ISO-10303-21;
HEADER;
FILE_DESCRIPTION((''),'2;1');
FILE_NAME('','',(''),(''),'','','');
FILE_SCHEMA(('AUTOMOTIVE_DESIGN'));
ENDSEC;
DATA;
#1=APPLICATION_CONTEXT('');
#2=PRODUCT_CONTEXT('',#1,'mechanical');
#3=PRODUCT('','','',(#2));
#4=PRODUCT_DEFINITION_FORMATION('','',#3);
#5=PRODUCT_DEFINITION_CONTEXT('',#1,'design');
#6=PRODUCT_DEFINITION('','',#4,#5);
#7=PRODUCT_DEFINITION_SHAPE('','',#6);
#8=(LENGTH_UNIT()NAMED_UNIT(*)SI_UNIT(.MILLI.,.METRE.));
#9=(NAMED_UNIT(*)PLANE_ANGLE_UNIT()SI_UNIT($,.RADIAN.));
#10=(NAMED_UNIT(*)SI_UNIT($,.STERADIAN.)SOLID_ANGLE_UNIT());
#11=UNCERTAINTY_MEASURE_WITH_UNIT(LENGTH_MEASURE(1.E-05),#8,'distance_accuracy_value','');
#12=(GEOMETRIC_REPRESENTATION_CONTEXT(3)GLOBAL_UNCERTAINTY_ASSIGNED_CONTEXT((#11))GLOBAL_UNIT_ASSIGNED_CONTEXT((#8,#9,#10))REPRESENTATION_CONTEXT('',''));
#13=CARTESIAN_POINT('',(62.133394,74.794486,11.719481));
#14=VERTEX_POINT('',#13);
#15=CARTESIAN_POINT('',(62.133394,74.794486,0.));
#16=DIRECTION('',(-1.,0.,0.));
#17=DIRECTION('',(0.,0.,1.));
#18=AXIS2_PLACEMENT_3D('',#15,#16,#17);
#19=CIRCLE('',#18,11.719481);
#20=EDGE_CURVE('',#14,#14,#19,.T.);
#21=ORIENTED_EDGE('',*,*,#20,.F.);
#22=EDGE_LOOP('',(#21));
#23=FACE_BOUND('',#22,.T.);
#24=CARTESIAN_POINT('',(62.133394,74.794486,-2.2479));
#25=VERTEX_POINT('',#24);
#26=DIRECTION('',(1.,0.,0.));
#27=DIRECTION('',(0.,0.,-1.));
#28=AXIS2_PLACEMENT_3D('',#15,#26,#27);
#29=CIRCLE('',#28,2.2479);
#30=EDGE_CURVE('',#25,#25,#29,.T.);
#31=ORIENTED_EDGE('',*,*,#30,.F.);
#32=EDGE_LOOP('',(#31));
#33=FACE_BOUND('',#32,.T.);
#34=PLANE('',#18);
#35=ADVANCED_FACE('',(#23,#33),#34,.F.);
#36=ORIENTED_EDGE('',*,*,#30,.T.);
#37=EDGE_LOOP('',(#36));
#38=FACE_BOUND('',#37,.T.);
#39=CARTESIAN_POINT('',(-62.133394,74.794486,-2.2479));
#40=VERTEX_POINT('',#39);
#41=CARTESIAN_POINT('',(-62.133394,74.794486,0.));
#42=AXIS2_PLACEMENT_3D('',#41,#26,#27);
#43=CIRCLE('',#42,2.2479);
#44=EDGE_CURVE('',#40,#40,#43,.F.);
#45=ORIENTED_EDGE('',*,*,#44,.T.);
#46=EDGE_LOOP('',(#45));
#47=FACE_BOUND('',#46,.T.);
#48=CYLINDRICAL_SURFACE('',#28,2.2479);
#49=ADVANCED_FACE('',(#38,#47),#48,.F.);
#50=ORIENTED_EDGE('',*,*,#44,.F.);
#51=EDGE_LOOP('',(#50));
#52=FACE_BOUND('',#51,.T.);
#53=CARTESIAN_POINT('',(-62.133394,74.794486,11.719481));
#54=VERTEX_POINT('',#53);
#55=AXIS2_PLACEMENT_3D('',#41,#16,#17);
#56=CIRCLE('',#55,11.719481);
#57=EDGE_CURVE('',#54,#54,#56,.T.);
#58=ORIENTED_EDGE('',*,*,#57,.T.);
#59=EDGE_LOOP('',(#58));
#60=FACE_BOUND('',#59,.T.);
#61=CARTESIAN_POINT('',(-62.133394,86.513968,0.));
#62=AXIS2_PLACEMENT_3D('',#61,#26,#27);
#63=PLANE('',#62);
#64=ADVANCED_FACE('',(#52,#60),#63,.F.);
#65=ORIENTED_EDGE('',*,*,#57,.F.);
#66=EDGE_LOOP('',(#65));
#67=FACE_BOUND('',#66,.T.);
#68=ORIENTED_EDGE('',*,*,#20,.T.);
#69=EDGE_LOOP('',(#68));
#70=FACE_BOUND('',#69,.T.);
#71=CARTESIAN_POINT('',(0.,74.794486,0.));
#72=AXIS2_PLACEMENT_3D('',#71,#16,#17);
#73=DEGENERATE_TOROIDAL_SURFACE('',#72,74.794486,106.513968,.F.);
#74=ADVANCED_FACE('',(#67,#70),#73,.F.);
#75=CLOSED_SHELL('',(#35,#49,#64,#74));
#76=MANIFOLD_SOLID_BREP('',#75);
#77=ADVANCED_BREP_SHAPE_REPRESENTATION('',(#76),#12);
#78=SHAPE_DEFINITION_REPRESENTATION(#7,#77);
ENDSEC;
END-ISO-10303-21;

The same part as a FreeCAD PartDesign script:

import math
import FreeCAD as App
import Part
import Sketcher
Q = App.Units.Quantity

doc = App.newDocument("Part")
body = doc.addObject("PartDesign::Body", "Body")

sketch1 = body.newObject("Sketcher::SketchObject", "Sketch")
sketch1.AttachmentSupport = (doc.getObject("XY_Plane"), [""])
sketch1.MapMode = "FlatFace"
sketch1.addGeometry([
    Part.LineSegment(App.Vector(-62.133394, 86.513968, 0), App.Vector(-62.133394, 74.794486, 0)),
    Part.LineSegment(App.Vector(-62.133394, 74.794486, 0), App.Vector(62.133394, 74.794486, 0)),
    Part.LineSegment(App.Vector(62.133394, 74.794486, 0), App.Vector(62.133394, 86.513968, 0)),
    Part.ArcOfCircle(Part.Circle(App.Vector(0, 0, 0), App.Vector(0, 0, 1), 106.513968), math.radians(54.314502), math.radians(125.685498)),
], False)
sketch1.addGeometry(Part.LineSegment(App.Vector(-62.133394, 74.794486, 0), App.Vector(62.133394, 74.794486, 0)), True)
sketch1.addConstraint([
    Sketcher.Constraint("Coincident", 0, 2, 1, 1),
    Sketcher.Constraint("Coincident", 1, 2, 2, 1),
    Sketcher.Constraint("Coincident", 2, 2, 3, 1),
    Sketcher.Constraint("Coincident", 3, 2, 0, 1),
    Sketcher.Constraint("Vertical", 0),
    Sketcher.Constraint("Horizontal", 1),
    Sketcher.Constraint("Vertical", 2),
    Sketcher.Constraint("Horizontal", 4),
    Sketcher.Constraint("Coincident", 3, 3, -1, 1),
    Sketcher.Constraint("Coincident", 4, 1, 0, 2),
    Sketcher.Constraint("Horizontal", 2, 2, 3, 2),
    Sketcher.Constraint("Vertical", 2, 2, 4, 2),
    Sketcher.Constraint("Radius", 3, 106.513968),
    Sketcher.Constraint("DistanceX", 1, 1, 1, 2, 124.266789),
    Sketcher.Constraint("DistanceY", 0, 2, 0, 1, 11.719481),
])
revolution = body.newObject("PartDesign::Revolution", "Revolution")
revolution.Profile = sketch1
revolution.ReferenceAxis = (sketch1, ["Axis0"])
revolution.Angle = 360

sketch2 = body.newObject("Sketcher::SketchObject", "Sketch001")
sketch2.AttachmentSupport = (doc.getObject("YZ_Plane"), [""])
sketch2.MapMode = "FlatFace"
sketch2.AttachmentOffset = App.Placement(App.Vector(0, 0, 62.133394), App.Rotation())
sketch2.addGeometry(Part.Circle(App.Vector(74.794486, 0, 0), App.Vector(0, 0, 1), 2.2479), False)
sketch2.addConstraint([
    Sketcher.Constraint("PointOnObject", 0, 3, -1),
    Sketcher.Constraint("Diameter", 0, Q("0.177 in")),
    Sketcher.Constraint("DistanceX", -1, 1, 0, 3, 74.794486),
])
doc.recompute()
hole = body.newObject("PartDesign::Hole", "Hole")
hole.Profile = sketch2
hole.ThreadType = "None"
hole.Diameter = Q("0.177 in")
hole.DepthType = "ThroughAll"

doc.recompute()
